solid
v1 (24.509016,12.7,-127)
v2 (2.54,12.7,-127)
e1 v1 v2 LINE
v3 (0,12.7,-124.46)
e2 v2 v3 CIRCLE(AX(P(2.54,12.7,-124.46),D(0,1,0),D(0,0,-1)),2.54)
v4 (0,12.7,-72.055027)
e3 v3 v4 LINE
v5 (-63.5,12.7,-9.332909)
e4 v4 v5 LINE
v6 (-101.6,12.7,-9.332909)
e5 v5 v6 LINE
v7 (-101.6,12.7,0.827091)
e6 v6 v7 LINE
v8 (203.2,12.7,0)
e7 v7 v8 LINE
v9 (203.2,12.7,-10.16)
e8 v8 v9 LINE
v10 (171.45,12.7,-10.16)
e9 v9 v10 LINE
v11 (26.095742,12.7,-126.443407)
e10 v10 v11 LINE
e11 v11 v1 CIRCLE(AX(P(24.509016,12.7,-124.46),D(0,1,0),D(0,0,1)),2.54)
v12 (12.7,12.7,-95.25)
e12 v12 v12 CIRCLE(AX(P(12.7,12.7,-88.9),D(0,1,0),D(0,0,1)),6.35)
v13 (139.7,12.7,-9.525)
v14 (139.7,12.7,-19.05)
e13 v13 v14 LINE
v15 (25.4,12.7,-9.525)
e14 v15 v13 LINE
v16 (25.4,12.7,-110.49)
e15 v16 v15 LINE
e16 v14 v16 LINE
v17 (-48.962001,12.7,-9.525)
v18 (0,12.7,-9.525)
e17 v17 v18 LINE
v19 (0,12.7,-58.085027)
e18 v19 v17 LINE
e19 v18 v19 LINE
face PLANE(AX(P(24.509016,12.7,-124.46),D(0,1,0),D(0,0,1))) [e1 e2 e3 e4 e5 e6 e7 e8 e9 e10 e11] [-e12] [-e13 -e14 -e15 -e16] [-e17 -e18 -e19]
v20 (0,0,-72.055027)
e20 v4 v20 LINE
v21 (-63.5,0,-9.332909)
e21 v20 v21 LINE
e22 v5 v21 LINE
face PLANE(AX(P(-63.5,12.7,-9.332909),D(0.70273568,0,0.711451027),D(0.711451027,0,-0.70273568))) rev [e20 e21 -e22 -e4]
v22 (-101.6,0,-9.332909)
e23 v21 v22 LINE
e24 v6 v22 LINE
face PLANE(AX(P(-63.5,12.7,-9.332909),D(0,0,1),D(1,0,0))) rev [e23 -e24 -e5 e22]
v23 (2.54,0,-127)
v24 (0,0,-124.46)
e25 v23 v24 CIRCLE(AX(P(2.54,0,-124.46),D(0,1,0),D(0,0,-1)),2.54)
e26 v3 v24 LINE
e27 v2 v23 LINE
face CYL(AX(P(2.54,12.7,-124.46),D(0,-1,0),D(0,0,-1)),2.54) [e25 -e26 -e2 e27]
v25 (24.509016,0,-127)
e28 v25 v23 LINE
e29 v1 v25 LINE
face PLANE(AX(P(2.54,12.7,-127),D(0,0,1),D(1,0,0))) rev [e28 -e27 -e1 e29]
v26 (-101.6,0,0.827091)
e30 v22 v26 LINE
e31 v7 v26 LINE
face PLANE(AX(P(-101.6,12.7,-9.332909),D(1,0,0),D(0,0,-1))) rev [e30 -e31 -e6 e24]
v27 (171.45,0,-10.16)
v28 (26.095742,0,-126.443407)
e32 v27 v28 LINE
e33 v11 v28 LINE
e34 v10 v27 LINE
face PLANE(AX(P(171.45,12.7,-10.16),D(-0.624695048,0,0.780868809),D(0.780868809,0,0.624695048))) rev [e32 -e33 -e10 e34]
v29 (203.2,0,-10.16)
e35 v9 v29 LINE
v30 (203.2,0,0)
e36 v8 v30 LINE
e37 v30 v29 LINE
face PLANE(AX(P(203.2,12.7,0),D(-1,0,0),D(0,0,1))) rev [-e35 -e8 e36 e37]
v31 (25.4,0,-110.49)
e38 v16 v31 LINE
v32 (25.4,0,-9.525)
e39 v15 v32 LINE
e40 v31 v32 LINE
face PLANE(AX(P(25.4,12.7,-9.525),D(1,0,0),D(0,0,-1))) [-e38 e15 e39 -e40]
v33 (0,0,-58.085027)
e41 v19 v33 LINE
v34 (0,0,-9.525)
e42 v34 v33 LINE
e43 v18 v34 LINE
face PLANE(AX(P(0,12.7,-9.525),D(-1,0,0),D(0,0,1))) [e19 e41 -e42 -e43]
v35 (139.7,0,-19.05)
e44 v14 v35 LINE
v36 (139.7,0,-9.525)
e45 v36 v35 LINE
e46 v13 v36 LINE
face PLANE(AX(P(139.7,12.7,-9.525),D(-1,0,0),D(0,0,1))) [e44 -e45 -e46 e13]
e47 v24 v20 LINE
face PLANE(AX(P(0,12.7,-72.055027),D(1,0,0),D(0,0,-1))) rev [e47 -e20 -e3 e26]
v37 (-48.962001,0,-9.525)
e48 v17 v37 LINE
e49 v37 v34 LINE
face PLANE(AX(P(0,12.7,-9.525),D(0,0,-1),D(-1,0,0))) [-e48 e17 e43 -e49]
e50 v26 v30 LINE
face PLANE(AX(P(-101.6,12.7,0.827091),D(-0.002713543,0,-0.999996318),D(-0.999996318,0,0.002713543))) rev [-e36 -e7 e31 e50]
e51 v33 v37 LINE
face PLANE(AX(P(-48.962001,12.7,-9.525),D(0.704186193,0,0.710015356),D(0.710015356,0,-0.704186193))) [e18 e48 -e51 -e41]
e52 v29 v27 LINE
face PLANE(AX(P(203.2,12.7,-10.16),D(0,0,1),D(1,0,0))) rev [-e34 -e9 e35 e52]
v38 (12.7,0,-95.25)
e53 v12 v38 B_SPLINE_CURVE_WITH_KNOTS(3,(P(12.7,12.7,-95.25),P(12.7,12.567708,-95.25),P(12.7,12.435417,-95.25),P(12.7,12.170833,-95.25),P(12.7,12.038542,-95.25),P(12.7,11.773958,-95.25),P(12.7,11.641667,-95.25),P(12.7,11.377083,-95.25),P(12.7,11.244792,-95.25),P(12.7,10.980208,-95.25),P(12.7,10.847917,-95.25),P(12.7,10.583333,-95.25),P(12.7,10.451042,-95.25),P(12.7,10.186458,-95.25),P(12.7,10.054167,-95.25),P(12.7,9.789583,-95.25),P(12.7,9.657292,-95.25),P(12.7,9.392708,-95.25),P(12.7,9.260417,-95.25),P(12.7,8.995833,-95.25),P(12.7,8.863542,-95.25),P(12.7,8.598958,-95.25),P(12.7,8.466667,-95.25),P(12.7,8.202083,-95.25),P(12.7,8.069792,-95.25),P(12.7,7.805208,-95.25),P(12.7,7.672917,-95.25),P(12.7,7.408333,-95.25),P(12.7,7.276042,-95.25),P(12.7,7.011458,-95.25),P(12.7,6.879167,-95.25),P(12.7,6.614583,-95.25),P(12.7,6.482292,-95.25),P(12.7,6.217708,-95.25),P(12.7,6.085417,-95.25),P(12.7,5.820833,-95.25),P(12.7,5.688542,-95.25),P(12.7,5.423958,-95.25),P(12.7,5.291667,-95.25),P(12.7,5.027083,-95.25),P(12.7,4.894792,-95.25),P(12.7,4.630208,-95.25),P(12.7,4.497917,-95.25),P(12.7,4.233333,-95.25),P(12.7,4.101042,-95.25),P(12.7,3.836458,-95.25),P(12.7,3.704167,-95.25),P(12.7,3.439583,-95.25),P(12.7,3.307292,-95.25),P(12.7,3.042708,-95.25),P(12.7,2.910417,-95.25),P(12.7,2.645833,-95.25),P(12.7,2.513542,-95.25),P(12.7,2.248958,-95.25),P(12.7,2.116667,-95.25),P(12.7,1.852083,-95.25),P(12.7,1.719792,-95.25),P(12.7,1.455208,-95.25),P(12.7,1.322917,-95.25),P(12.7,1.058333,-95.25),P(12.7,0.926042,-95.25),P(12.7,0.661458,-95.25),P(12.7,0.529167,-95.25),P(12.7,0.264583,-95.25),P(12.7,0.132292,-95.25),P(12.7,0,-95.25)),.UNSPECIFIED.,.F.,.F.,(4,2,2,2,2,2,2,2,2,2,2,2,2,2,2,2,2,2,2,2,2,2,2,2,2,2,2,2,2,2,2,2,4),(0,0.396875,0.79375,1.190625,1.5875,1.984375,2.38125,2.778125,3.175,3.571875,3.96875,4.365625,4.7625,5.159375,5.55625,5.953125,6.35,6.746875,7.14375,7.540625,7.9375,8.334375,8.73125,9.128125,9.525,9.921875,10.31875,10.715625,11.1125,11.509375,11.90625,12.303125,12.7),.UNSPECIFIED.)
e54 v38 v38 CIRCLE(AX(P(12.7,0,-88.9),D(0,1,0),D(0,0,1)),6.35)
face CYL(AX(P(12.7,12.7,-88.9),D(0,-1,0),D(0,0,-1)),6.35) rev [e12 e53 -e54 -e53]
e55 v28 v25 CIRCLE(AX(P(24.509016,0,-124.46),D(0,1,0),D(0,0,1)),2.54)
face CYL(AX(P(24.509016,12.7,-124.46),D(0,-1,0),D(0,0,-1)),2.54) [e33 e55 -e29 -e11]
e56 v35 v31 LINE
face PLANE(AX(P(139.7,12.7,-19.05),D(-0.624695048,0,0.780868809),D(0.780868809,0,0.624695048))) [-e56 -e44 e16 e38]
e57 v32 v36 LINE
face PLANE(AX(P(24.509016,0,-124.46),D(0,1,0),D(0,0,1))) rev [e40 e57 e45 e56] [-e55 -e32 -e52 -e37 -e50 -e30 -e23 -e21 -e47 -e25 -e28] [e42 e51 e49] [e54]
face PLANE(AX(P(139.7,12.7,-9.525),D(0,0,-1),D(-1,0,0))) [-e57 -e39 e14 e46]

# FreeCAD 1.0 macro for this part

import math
import FreeCAD as App
import Part
import Sketcher

V = App.Vector
Q = App.Units.Quantity

doc = App.newDocument("Part")
body = doc.addObject("PartDesign::Body", "Body")

# Sketch on XZ plane
sketch1 = doc.addObject("Sketcher::SketchObject", "Sketch")
body.addObject(sketch1)
sketch1.AttachmentSupport = (doc.XZ_Plane, [""])
sketch1.MapMode = "FlatFace"
sketch1.addGeometry([
    Part.LineSegment(V(171.45, -10.16, 0), V(26.095742, -126.443407, 0)),  # 0
    Part.ArcOfCircle(Part.Circle(V(24.509016, -124.46, 0), V(0, 0, 1), 2.54), math.radians(-90), math.radians(-51.340192)),  # 1
    Part.LineSegment(V(24.509016, -127, 0), V(2.54, -127, 0)),  # 2
    Part.ArcOfCircle(Part.Circle(V(2.54, -124.46, 0), V(0, 0, 1), 2.54), math.radians(-180), math.radians(-90)),  # 3
    Part.LineSegment(V(0, -124.46, 0), V(0, -72.055027, 0)),  # 4
    Part.LineSegment(V(0, -72.055027, 0), V(-63.5, -9.332909, 0)),  # 5
    Part.LineSegment(V(-63.5, -9.332909, 0), V(-101.6, -9.332909, 0)),  # 6
    Part.LineSegment(V(-101.6, -9.332909, 0), V(-101.6, 0.827091, 0)),  # 7
    Part.LineSegment(V(-101.6, 0.827091, 0), V(203.2, 0, 0)),  # 8
    Part.LineSegment(V(203.2, 0, 0), V(203.2, -10.16, 0)),  # 9
    Part.LineSegment(V(203.2, -10.16, 0), V(171.45, -10.16, 0)),  # 10
    Part.LineSegment(V(0, -58.085027, 0), V(0, -9.525, 0)),  # 11
    Part.LineSegment(V(0, -9.525, 0), V(-48.962001, -9.525, 0)),  # 12
    Part.LineSegment(V(-48.962001, -9.525, 0), V(0, -58.085027, 0)),  # 13
    Part.Circle(V(12.7, -88.9, 0), V(0, 0, 1), 6.35),  # 14
    Part.LineSegment(V(139.7, -9.525, 0), V(25.4, -9.525, 0)),  # 15
    Part.LineSegment(V(25.4, -9.525, 0), V(25.4, -110.49, 0)),  # 16
    Part.LineSegment(V(25.4, -110.49, 0), V(139.7, -19.05, 0)),  # 17
    Part.LineSegment(V(139.7, -19.05, 0), V(139.7, -9.525, 0)),  # 18
], False)
sketch1.addConstraint([
    Sketcher.Constraint("Tangent", 0, 2, 1, 2),
    Sketcher.Constraint("Tangent", 1, 1, 2, 1),
    Sketcher.Constraint("Tangent", 2, 2, 3, 2),
    Sketcher.Constraint("Tangent", 3, 1, 4, 1),
    Sketcher.Constraint("Coincident", 4, 2, 5, 1),
    Sketcher.Constraint("Coincident", 5, 2, 6, 1),
    Sketcher.Constraint("Coincident", 6, 2, 7, 1),
    Sketcher.Constraint("Coincident", 7, 2, 8, 1),
    Sketcher.Constraint("Coincident", 8, 2, 9, 1),
    Sketcher.Constraint("Coincident", 9, 2, 10, 1),
    Sketcher.Constraint("Coincident", 10, 2, 0, 1),
    Sketcher.Constraint("Coincident", 11, 2, 12, 1),
    Sketcher.Constraint("Coincident", 12, 2, 13, 1),
    Sketcher.Constraint("Coincident", 13, 2, 11, 1),
    Sketcher.Constraint("Coincident", 15, 2, 16, 1),
    Sketcher.Constraint("Coincident", 16, 2, 17, 1),
    Sketcher.Constraint("Coincident", 17, 2, 18, 1),
    Sketcher.Constraint("Coincident", 18, 2, 15, 1),
    Sketcher.Constraint("Horizontal", 2),
    Sketcher.Constraint("Vertical", 4),
    Sketcher.Constraint("Horizontal", 6),
    Sketcher.Constraint("Vertical", 7),
    Sketcher.Constraint("Vertical", 9),
    Sketcher.Constraint("Horizontal", 10),
    Sketcher.Constraint("Vertical", 11),
    Sketcher.Constraint("Horizontal", 12),
    Sketcher.Constraint("Horizontal", 15),
    Sketcher.Constraint("Vertical", 16),
    Sketcher.Constraint("Vertical", 18),
    Sketcher.Constraint("Equal", 1, 3),
    Sketcher.Constraint("PointOnObject", 3, 1, -2),
    Sketcher.Constraint("PointOnObject", 8, 2, -1),
    Sketcher.Constraint("PointOnObject", 11, 2, -2),
    Sketcher.Constraint("Parallel", 0, 17),
    Sketcher.Constraint("Horizontal", 12, 2, 15, 2),
    Sketcher.Constraint("Equal", 7, 9),
    Sketcher.Constraint("Diameter", 14, Q("0.5 in")),
    Sketcher.Constraint("Radius", 1, Q("0.1 in")),
    Sketcher.Constraint("DistanceX", 6, 2, 6, 1, Q("1.5 in")),
    Sketcher.Constraint("DistanceX", 15, 2, 15, 1, Q("4.5 in")),
    Sketcher.Constraint("DistanceY", 7, 1, 7, 2, Q("0.4 in")),
    Sketcher.Constraint("DistanceY", 1, 1, -1, 1, Q("5 in")),
    Sketcher.Constraint("DistanceX", 6, 2, -1, 1, Q("4 in")),
    Sketcher.Constraint("DistanceX", -1, 1, 8, 2, Q("8 in")),
    Sketcher.Constraint("DistanceX", -1, 1, 15, 2, Q("1 in")),
    Sketcher.Constraint("DistanceX", 5, 2, 14, 3, Q("3 in")),
    Sketcher.Constraint("DistanceX", 10, 2, 10, 1, Q("1.25 in")),
    Sketcher.Constraint("DistanceY", 14, 3, -1, 1, Q("3.5 in")),
    Sketcher.Constraint("DistanceY", 16, 2, 16, 1, Q("3.975 in")),
    Sketcher.Constraint("DistanceY", 18, 1, 18, 2, Q("0.375 in")),
    Sketcher.Constraint("DistanceY", 16, 2, -1, 1, Q("4.35 in")),
    Sketcher.Constraint("DistanceY", 4, 2, 13, 2, Q("0.55 in")),
    Sketcher.Constraint("DistanceX", 12, 2, 12, 1, Q("48.962001 mm")),
    Sketcher.Constraint("Distance", 5, Q("89.254211 mm")),
    Sketcher.Constraint("DistanceY", 4, 1, 4, 2, Q("52.404973 mm")),
])
pad1 = doc.addObject("PartDesign::Pad", "Pad")
body.addObject(pad1)
pad1.Profile = sketch1
pad1.Length = Q("0.5 in")
pad1.Reversed = True

doc.recompute()
